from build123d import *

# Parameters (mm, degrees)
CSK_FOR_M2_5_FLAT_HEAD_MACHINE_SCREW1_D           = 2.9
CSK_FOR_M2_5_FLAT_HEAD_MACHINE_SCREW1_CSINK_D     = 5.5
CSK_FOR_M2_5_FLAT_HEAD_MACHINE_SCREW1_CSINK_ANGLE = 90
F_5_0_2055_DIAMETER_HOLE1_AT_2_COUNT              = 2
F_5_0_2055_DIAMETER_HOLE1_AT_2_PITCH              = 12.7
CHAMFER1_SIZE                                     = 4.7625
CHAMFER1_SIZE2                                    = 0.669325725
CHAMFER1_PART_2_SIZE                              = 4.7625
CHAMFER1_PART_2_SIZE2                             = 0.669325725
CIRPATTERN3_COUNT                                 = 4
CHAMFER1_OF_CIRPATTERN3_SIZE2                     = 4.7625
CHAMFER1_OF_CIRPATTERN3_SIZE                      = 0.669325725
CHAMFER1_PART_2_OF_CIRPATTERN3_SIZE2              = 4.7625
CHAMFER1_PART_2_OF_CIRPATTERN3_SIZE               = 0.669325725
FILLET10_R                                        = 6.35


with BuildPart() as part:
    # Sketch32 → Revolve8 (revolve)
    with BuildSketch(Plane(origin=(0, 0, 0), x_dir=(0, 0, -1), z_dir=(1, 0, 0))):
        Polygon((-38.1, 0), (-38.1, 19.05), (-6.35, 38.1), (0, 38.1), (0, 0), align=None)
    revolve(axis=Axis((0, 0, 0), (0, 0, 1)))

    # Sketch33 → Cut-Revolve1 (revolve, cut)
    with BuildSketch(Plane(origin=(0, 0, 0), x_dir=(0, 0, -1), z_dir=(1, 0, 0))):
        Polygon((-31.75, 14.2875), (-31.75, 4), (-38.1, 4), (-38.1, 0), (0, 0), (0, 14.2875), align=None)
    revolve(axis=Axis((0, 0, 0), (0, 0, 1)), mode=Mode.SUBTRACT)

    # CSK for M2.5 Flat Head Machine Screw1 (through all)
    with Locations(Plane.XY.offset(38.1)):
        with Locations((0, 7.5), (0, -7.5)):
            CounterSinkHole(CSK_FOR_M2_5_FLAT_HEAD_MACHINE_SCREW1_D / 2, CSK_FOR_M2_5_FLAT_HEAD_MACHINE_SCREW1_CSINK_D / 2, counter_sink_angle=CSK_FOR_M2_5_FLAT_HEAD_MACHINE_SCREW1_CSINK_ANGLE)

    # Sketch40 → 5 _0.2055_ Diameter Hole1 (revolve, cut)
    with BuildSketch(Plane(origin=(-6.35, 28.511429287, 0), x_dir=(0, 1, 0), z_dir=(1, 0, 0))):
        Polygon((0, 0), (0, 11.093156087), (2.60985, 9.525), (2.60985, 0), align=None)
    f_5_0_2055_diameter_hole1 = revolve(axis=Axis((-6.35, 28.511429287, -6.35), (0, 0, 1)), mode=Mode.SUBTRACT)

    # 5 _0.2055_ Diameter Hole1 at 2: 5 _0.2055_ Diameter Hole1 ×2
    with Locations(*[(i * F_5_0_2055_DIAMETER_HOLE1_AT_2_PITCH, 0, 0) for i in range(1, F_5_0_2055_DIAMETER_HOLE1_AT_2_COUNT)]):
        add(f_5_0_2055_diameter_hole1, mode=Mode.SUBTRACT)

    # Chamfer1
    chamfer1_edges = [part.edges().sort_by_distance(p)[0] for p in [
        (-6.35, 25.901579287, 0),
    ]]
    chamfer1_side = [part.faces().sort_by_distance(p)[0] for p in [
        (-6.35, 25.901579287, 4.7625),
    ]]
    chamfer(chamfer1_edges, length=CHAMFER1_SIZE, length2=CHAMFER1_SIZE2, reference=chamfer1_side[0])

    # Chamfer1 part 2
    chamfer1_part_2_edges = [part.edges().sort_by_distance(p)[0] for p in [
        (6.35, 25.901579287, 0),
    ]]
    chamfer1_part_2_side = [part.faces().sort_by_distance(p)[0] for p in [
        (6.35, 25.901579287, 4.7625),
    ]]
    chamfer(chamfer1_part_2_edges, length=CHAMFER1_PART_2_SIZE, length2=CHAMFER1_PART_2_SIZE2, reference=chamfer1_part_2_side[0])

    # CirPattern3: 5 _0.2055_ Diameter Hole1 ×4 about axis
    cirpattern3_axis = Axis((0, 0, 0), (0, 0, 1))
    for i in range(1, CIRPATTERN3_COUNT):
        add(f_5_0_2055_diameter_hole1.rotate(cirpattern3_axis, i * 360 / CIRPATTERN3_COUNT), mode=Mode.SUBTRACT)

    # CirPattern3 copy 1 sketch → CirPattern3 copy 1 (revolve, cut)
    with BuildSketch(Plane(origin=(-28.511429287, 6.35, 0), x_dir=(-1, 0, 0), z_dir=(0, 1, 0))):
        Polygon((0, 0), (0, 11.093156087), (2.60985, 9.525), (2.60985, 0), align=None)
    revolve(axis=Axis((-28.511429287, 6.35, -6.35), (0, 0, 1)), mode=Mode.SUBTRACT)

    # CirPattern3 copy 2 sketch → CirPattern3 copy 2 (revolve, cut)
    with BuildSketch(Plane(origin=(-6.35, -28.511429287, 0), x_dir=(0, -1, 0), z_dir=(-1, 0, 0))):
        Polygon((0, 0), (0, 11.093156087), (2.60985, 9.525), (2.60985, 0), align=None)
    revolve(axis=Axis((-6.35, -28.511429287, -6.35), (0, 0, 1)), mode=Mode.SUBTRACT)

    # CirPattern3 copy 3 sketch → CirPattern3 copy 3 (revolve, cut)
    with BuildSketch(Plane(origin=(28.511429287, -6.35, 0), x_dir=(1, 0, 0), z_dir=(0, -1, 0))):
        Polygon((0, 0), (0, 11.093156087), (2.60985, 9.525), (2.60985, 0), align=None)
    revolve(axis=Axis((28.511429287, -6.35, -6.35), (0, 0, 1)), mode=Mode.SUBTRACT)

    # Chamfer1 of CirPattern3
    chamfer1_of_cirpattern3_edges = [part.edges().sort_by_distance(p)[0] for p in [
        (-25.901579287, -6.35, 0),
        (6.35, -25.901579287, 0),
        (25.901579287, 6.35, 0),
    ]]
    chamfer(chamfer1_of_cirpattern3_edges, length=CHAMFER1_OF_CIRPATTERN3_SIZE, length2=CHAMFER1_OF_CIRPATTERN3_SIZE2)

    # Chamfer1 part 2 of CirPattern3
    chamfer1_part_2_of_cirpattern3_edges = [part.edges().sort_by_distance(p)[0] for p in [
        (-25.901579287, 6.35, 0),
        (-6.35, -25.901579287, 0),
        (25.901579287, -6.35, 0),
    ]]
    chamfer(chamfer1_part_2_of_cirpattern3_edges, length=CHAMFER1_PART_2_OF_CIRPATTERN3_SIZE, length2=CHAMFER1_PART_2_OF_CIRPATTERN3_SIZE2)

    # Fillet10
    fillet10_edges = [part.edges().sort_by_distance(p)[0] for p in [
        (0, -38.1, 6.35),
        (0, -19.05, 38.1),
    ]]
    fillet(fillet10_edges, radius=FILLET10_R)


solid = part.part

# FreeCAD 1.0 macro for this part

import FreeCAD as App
import Part
import Sketcher
Q = App.Units.Quantity


def edges_at(feature, points):
    """Names of the edges that pass closest to the given points."""
    edges = feature.Shape.Edges
    near = lambda p: min(range(len(edges)), key=lambda i: edges[i].distToShape(Part.Vertex(*p))[0])
    return sorted({f"Edge{near(p) + 1}" for p in points})

doc = App.newDocument("Part")
body = doc.addObject("PartDesign::Body", "Body")

# Sketch on YZ plane
sketch1 = body.newObject("Sketcher::SketchObject", "Sketch")
sketch1.AttachmentSupport = (doc.getObject("YZ_Plane"), [""])
sketch1.MapMode = "FlatFace"
sketch1.addGeometry([
    Part.LineSegment(App.Vector(19, 38, 0), App.Vector(0, 38, 0)),  # 0
    Part.LineSegment(App.Vector(0, 38, 0), App.Vector(0, 0, 0)),  # 1
    Part.LineSegment(App.Vector(0, 0, 0), App.Vector(38, 0, 0)),  # 2
    Part.LineSegment(App.Vector(38, 0, 0), App.Vector(38, 6, 0)),  # 3
    Part.LineSegment(App.Vector(38, 6, 0), App.Vector(19, 38, 0)),  # 4
], False)
sketch1.addConstraint([
    Sketcher.Constraint("Coincident", 0, 2, 1, 1),
    Sketcher.Constraint("Coincident", 1, 2, 2, 1),
    Sketcher.Constraint("Coincident", 2, 2, 3, 1),
    Sketcher.Constraint("Coincident", 3, 2, 4, 1),
    Sketcher.Constraint("Coincident", 4, 2, 0, 1),
    Sketcher.Constraint("Horizontal", 0),
    Sketcher.Constraint("Vertical", 1),
    Sketcher.Constraint("Horizontal", 2),
    Sketcher.Constraint("Vertical", 3),
    Sketcher.Constraint("Coincident", 1, 2, -1, 1),
    Sketcher.Constraint("Equal", 2, 1),
    Sketcher.Constraint("DistanceX", 2, 1, 2, 2, Q("1.5 in")),
    Sketcher.Constraint("DistanceX", 0, 2, 0, 1, Q("0.75 in")),
    Sketcher.Constraint("DistanceY", 3, 1, 3, 2, Q("0.25 in")),
])
revolution = body.newObject("PartDesign::Revolution", "Revolution")
revolution.Profile = sketch1
revolution.ReferenceAxis = (sketch1, ["V_Axis"])
revolution.Angle = 360

# Sketch on YZ plane
sketch2 = body.newObject("Sketcher::SketchObject", "Sketch001")
sketch2.AttachmentSupport = (doc.getObject("YZ_Plane"), [""])
sketch2.MapMode = "FlatFace"
sketch2.addGeometry([
    Part.LineSegment(App.Vector(14.3, 31.8, 0), App.Vector(4, 31.8, 0)),  # 0
    Part.LineSegment(App.Vector(4, 31.8, 0), App.Vector(4, 38.1, 0)),  # 1
    Part.LineSegment(App.Vector(4, 38.1, 0), App.Vector(0, 38.1, 0)),  # 2
    Part.LineSegment(App.Vector(0, 38.1, 0), App.Vector(0, 0, 0)),  # 3
    Part.LineSegment(App.Vector(0, 0, 0), App.Vector(14.3, 0, 0)),  # 4
    Part.LineSegment(App.Vector(14.3, 0, 0), App.Vector(14.3, 31.8, 0)),  # 5
], False)
sketch2.addConstraint([
    Sketcher.Constraint("Coincident", 0, 2, 1, 1),
    Sketcher.Constraint("Coincident", 1, 2, 2, 1),
    Sketcher.Constraint("Coincident", 2, 2, 3, 1),
    Sketcher.Constraint("Coincident", 3, 2, 4, 1),
    Sketcher.Constraint("Coincident", 4, 2, 5, 1),
    Sketcher.Constraint("Coincident", 5, 2, 0, 1),
    Sketcher.Constraint("Horizontal", 0),
    Sketcher.Constraint("Vertical", 1),
    Sketcher.Constraint("Horizontal", 2),
    Sketcher.Constraint("Vertical", 3),
    Sketcher.Constraint("Horizontal", 4),
    Sketcher.Constraint("Vertical", 5),
    Sketcher.Constraint("Coincident", 3, 2, -1, 1),
    Sketcher.Constraint("DistanceY", 3, 2, 3, 1, Q("1.5 in")),
    Sketcher.Constraint("DistanceY", 1, 1, 1, 2, Q("0.25 in")),
    Sketcher.Constraint("DistanceX", 4, 1, 4, 2, Q("0.5625 in")),
    Sketcher.Constraint("DistanceX", 0, 2, 0, 1, Q("10.2875 mm")),
])
groove = body.newObject("PartDesign::Groove", "Groove")
groove.Profile = sketch2
groove.ReferenceAxis = (sketch2, ["V_Axis"])
groove.Angle = 360

# Sketch on XY plane
sketch3 = body.newObject("Sketcher::SketchObject", "Sketch002")
sketch3.AttachmentSupport = (doc.getObject("XY_Plane"), [""])
sketch3.MapMode = "FlatFace"
sketch3.AttachmentOffset = App.Placement(App.Vector(0, 0, 1.5 * 25.4), App.Rotation())
sketch3.addGeometry([
    Part.Circle(App.Vector(0, 7.5, 0), App.Vector(0, 0, 1), 1.4),
    Part.Circle(App.Vector(0, -7.5, 0), App.Vector(0, 0, 1), 1.4),
], False)
sketch3.addConstraint([
    Sketcher.Constraint("Equal", 0, 1),
    Sketcher.Constraint("Symmetric", 0, 3, 1, 3, -1, 1),
    Sketcher.Constraint("PointOnObject", 0, 3, -2),
    Sketcher.Constraint("Diameter", 0, Q("2.9 mm")),
    Sketcher.Constraint("DistanceY", -1, 1, 0, 3, Q("7.5 mm")),
])
doc.recompute()
hole = body.newObject("PartDesign::Hole", "Hole")
hole.Profile = sketch3
hole.ThreadType = "None"
hole.Diameter = 2.9
hole.DepthType = "ThroughAll"
hole.HoleCutType = "Countersink"
hole.HoleCutDiameter = 5.5
hole.HoleCutCountersinkAngle = 90

# Sketch on YZ plane
sketch4 = body.newObject("Sketcher::SketchObject", "Sketch003")
sketch4.AttachmentSupport = (doc.getObject("YZ_Plane"), [""])
sketch4.MapMode = "FlatFace"
sketch4.AttachmentOffset = App.Placement(App.Vector(0, 0, -0.25 * 25.4), App.Rotation())
sketch4.addGeometry([
    Part.LineSegment(App.Vector(28.5, 11.1, 0), App.Vector(28.5, 0, 0)),
    Part.LineSegment(App.Vector(28.5, 0, 0), App.Vector(31.1, 0, 0)),
    Part.LineSegment(App.Vector(31.1, 0, 0), App.Vector(31.1, 9.5, 0)),
    Part.LineSegment(App.Vector(31.1, 9.5, 0), App.Vector(28.5, 11.1, 0)),
], False)
sketch4.addGeometry(Part.LineSegment(App.Vector(28.5, 0, 0), App.Vector(28.5, 11.1, 0)), True)  # axis
sketch4.addConstraint([
    Sketcher.Constraint("Coincident", 0, 2, 1, 1),
    Sketcher.Constraint("Coincident", 1, 2, 2, 1),
    Sketcher.Constraint("Coincident", 2, 2, 3, 1),
    Sketcher.Constraint("Coincident", 3, 2, 0, 1),
    Sketcher.Constraint("Vertical", 0),
    Sketcher.Constraint("Horizontal", 1),
    Sketcher.Constraint("Vertical", 2),
    Sketcher.Constraint("Vertical", 4),
    Sketcher.Constraint("Coincident", 4, 1, 0, 2),
    Sketcher.Constraint("PointOnObject", 0, 2, -1),
    Sketcher.Constraint("Equal", 0, 4),
    Sketcher.Constraint("Angle", 3, Q("149 deg")),
    Sketcher.Constraint("DistanceY", 2, 1, 2, 2, Q("0.375 in")),
    Sketcher.Constraint("DistanceX", 1, 1, 1, 2, Q("2.60985 mm")),
    Sketcher.Constraint("DistanceX", -1, 1, 0, 2, Q("28.511429 mm")),
])
groove2 = body.newObject("PartDesign::Groove", "Groove001")
groove2.Profile = sketch4
groove2.ReferenceAxis = (sketch4, ["Axis0"])
groove2.Angle = 360
doc.recompute()

linearpattern = body.newObject("PartDesign::LinearPattern", "LinearPattern")
linearpattern.Originals = [groove2]
linearpattern.Direction = (doc.getObject("X_Axis"), [""])
linearpattern.Mode = "offset"
linearpattern.Offset = Q("0.5 in")
linearpattern.Occurrences = 2
body.Tip = linearpattern
doc.recompute()

chamfer = body.newObject("PartDesign::Chamfer", "Chamfer")
chamfer.Base = (linearpattern, edges_at(linearpattern, [(-6.35, 25.902, 0)]))
chamfer.ChamferType = "Two distances"
chamfer.Size = Q("0.1875 in")
chamfer.Size2 = 0.669326
chamfer.FlipDirection = True
doc.recompute()

chamfer2 = body.newObject("PartDesign::Chamfer", "Chamfer001")
chamfer2.Base = (chamfer, edges_at(chamfer, [(6.35, 25.902, 0)]))
chamfer2.ChamferType = "Two distances"
chamfer2.Size = Q("0.1875 in")
chamfer2.Size2 = 0.669326
chamfer2.FlipDirection = True
doc.recompute()

polarpattern = body.newObject("PartDesign::PolarPattern", "PolarPattern")
polarpattern.Originals = [groove2]
polarpattern.Axis = (doc.getObject("Z_Axis"), [""])
polarpattern.Angle = 360
polarpattern.Occurrences = 4
body.Tip = polarpattern

# Sketch on XZ plane
sketch5 = body.newObject("Sketcher::SketchObject", "Sketch004")
sketch5.AttachmentSupport = (doc.getObject("XZ_Plane"), [""])
sketch5.MapMode = "FlatFace"
sketch5.AttachmentOffset = App.Placement(App.Vector(0, 0, -0.25 * 25.4), App.Rotation())
sketch5.addGeometry([
    Part.LineSegment(App.Vector(-28.5, 11.1, 0), App.Vector(-28.5, 0, 0)),
    Part.LineSegment(App.Vector(-28.5, 0, 0), App.Vector(-31.1, 0, 0)),
    Part.LineSegment(App.Vector(-31.1, 0, 0), App.Vector(-31.1, 9.5, 0)),
    Part.LineSegment(App.Vector(-31.1, 9.5, 0), App.Vector(-28.5, 11.1, 0)),
], False)
sketch5.addGeometry(Part.LineSegment(App.Vector(-28.5, 0, 0), App.Vector(-28.5, 11.1, 0)), True)  # axis
sketch5.addConstraint([
    Sketcher.Constraint("Coincident", 0, 2, 1, 1),
    Sketcher.Constraint("Coincident", 1, 2, 2, 1),
    Sketcher.Constraint("Coincident", 2, 2, 3, 1),
    Sketcher.Constraint("Coincident", 3, 2, 0, 1),
    Sketcher.Constraint("Vertical", 0),
    Sketcher.Constraint("Horizontal", 1),
    Sketcher.Constraint("Vertical", 2),
    Sketcher.Constraint("Vertical", 4),
    Sketcher.Constraint("Coincident", 4, 1, 0, 2),
    Sketcher.Constraint("PointOnObject", 0, 2, -1),
    Sketcher.Constraint("Equal", 0, 4),
    Sketcher.Constraint("Angle", 3, Q("31 deg")),
    Sketcher.Constraint("DistanceY", 2, 1, 2, 2, Q("0.375 in")),
    Sketcher.Constraint("DistanceX", 1, 2, 1, 1, Q("2.60985 mm")),
    Sketcher.Constraint("DistanceX", 0, 2, -1, 1, Q("28.511429 mm")),
])
groove3 = body.newObject("PartDesign::Groove", "Groove002")
groove3.Profile = sketch5
groove3.ReferenceAxis = (sketch5, ["Axis0"])
groove3.Angle = 360

# Sketch on YZ plane
sketch6 = body.newObject("Sketcher::SketchObject", "Sketch005")
sketch6.AttachmentSupport = (doc.getObject("YZ_Plane"), [""])
sketch6.MapMode = "FlatFace"
sketch6.AttachmentOffset = App.Placement(App.Vector(0, 0, -0.25 * 25.4), App.Rotation())
sketch6.addGeometry([
    Part.LineSegment(App.Vector(-28.5, 11.1, 0), App.Vector(-28.5, 0, 0)),
    Part.LineSegment(App.Vector(-28.5, 0, 0), App.Vector(-31.1, 0, 0)),
    Part.LineSegment(App.Vector(-31.1, 0, 0), App.Vector(-31.1, 9.5, 0)),
    Part.LineSegment(App.Vector(-31.1, 9.5, 0), App.Vector(-28.5, 11.1, 0)),
], False)
sketch6.addGeometry(Part.LineSegment(App.Vector(-28.5, 0, 0), App.Vector(-28.5, 11.1, 0)), True)  # axis
sketch6.addConstraint([
    Sketcher.Constraint("Coincident", 0, 2, 1, 1),
    Sketcher.Constraint("Coincident", 1, 2, 2, 1),
    Sketcher.Constraint("Coincident", 2, 2, 3, 1),
    Sketcher.Constraint("Coincident", 3, 2, 0, 1),
    Sketcher.Constraint("Vertical", 0),
    Sketcher.Constraint("Horizontal", 1),
    Sketcher.Constraint("Vertical", 2),
    Sketcher.Constraint("Vertical", 4),
    Sketcher.Constraint("Coincident", 4, 1, 0, 2),
    Sketcher.Constraint("PointOnObject", 0, 2, -1),
    Sketcher.Constraint("Equal", 0, 4),
    Sketcher.Constraint("Angle", 3, Q("31 deg")),
    Sketcher.Constraint("DistanceY", 2, 1, 2, 2, Q("0.375 in")),
    Sketcher.Constraint("DistanceX", 1, 2, 1, 1, Q("2.60985 mm")),
    Sketcher.Constraint("DistanceX", 0, 2, -1, 1, Q("28.511429 mm")),
])
groove4 = body.newObject("PartDesign::Groove", "Groove003")
groove4.Profile = sketch6
groove4.ReferenceAxis = (sketch6, ["Axis0"])
groove4.Angle = 360

# Sketch on XZ plane
sketch7 = body.newObject("Sketcher::SketchObject", "Sketch006")
sketch7.AttachmentSupport = (doc.getObject("XZ_Plane"), [""])
sketch7.MapMode = "FlatFace"
sketch7.AttachmentOffset = App.Placement(App.Vector(0, 0, 0.25 * 25.4), App.Rotation())
sketch7.addGeometry([
    Part.LineSegment(App.Vector(28.5, 11.1, 0), App.Vector(28.5, 0, 0)),
    Part.LineSegment(App.Vector(28.5, 0, 0), App.Vector(31.1, 0, 0)),
    Part.LineSegment(App.Vector(31.1, 0, 0), App.Vector(31.1, 9.5, 0)),
    Part.LineSegment(App.Vector(31.1, 9.5, 0), App.Vector(28.5, 11.1, 0)),
], False)
sketch7.addGeometry(Part.LineSegment(App.Vector(28.5, 0, 0), App.Vector(28.5, 11.1, 0)), True)  # axis
sketch7.addConstraint([
    Sketcher.Constraint("Coincident", 0, 2, 1, 1),
    Sketcher.Constraint("Coincident", 1, 2, 2, 1),
    Sketcher.Constraint("Coincident", 2, 2, 3, 1),
    Sketcher.Constraint("Coincident", 3, 2, 0, 1),
    Sketcher.Constraint("Vertical", 0),
    Sketcher.Constraint("Horizontal", 1),
    Sketcher.Constraint("Vertical", 2),
    Sketcher.Constraint("Vertical", 4),
    Sketcher.Constraint("Coincident", 4, 1, 0, 2),
    Sketcher.Constraint("PointOnObject", 0, 2, -1),
    Sketcher.Constraint("Equal", 0, 4),
    Sketcher.Constraint("Angle", 3, Q("149 deg")),
    Sketcher.Constraint("DistanceY", 2, 1, 2, 2, Q("0.375 in")),
    Sketcher.Constraint("DistanceX", 1, 1, 1, 2, Q("2.60985 mm")),
    Sketcher.Constraint("DistanceX", -1, 1, 0, 2, Q("28.511429 mm")),
])
groove5 = body.newObject("PartDesign::Groove", "Groove004")
groove5.Profile = sketch7
groove5.ReferenceAxis = (sketch7, ["Axis0"])
groove5.Angle = 360
doc.recompute()

chamfer3 = body.newObject("PartDesign::Chamfer", "Chamfer002")
chamfer3.Base = (groove5, edges_at(groove5, [(-25.902, -6.35, 0), (6.35, -25.902, 0), (25.902, 6.35, 0)]))
chamfer3.ChamferType = "Two distances"
chamfer3.Size = 0.669326
chamfer3.Size2 = Q("0.1875 in")
doc.recompute()

chamfer4 = body.newObject("PartDesign::Chamfer", "Chamfer003")
chamfer4.Base = (chamfer3, edges_at(chamfer3, [(-25.902, 6.35, 0), (-6.35, -25.902, 0), (25.902, -6.35, 0)]))
chamfer4.ChamferType = "Two distances"
chamfer4.Size = 0.669326
chamfer4.Size2 = Q("0.1875 in")
doc.recompute()

fillet = body.newObject("PartDesign::Fillet", "Fillet")
fillet.Base = (chamfer4, edges_at(chamfer4, [(0, -38.1, 6.35), (0, -19.05, 38.1)]))
fillet.Radius = Q("0.25 in")

doc.recompute()
